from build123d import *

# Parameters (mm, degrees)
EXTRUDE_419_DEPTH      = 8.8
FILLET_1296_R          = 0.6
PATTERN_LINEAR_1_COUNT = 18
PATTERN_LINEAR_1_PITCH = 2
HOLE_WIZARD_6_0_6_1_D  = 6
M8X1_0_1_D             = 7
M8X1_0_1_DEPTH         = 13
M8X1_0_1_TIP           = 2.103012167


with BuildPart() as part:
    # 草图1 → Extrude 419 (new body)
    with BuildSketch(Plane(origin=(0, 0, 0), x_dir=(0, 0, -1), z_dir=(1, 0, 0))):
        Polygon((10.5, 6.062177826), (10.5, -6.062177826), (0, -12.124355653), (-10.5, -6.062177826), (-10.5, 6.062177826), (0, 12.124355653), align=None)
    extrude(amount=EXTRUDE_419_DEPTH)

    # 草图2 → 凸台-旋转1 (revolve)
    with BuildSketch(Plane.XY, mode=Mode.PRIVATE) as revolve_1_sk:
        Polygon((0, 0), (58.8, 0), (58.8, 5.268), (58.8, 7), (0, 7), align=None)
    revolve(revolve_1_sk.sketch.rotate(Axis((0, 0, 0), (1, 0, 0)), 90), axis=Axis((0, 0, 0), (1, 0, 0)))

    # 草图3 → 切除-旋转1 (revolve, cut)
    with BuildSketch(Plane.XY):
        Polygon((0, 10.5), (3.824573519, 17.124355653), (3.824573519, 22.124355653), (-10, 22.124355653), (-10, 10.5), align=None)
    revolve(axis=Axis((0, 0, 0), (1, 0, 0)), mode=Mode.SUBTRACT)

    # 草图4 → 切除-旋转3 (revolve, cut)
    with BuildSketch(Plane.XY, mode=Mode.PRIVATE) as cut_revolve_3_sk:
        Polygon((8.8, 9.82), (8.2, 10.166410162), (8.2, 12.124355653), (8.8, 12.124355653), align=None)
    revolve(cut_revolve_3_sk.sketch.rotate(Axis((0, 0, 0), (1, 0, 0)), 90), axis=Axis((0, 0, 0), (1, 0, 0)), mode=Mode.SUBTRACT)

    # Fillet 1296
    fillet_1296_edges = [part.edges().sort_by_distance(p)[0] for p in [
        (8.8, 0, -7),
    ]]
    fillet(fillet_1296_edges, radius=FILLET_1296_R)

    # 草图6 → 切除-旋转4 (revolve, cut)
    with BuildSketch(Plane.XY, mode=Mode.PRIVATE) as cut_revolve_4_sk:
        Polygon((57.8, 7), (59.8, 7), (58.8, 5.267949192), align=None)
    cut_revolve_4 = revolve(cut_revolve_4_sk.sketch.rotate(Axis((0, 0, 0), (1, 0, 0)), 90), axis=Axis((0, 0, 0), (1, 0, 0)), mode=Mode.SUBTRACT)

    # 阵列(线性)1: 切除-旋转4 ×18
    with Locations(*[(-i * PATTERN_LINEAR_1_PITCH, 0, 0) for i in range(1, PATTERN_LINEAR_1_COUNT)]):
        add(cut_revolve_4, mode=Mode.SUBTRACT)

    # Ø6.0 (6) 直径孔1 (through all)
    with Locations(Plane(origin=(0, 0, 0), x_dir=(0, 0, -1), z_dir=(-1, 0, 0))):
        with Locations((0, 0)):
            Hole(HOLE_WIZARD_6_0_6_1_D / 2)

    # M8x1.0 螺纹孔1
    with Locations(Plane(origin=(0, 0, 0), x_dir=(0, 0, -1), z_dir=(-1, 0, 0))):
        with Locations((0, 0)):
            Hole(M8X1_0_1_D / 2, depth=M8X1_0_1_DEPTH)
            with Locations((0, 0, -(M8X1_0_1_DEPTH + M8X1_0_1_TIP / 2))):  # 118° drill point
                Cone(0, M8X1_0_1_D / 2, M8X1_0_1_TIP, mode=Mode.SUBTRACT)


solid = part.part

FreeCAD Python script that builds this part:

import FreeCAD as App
import Part
import Sketcher
from FreeCAD import Vector
Q = App.Units.Quantity


def edges_at(feature, points):
    """Names of the edges that pass closest to the given points."""
    edges = feature.Shape.Edges
    near = lambda p: min(range(len(edges)), key=lambda i: edges[i].distToShape(Part.Vertex(*p))[0])
    return sorted({f"Edge{near(p) + 1}" for p in points})

doc = App.newDocument("Part")
body = doc.addObject("PartDesign::Body", "Body")

# Sketch on YZ plane
sketch1 = doc.addObject("Sketcher::SketchObject", "Sketch")
body.addObject(sketch1)
sketch1.AttachmentSupport = (doc.YZ_Plane, [""])
sketch1.MapMode = "FlatFace"
sketch1.addGeometry(Part.LineSegment(Vector(-6, -10, 0), Vector(6, -10, 0)), False)
sketch1.addGeometry(Part.LineSegment(Vector(6, -10, 0), Vector(12, 0, 0)), False)
sketch1.addGeometry(Part.LineSegment(Vector(12, 0, 0), Vector(6, 10, 0)), False)
sketch1.addGeometry(Part.LineSegment(Vector(6, 10, 0), Vector(-6, 10, 0)), False)
sketch1.addGeometry(Part.LineSegment(Vector(-6, 10, 0), Vector(-12, 0, 0)), False)
sketch1.addGeometry(Part.LineSegment(Vector(-12, 0, 0), Vector(-6, -10, 0)), False)
sketch1.addConstraint(Sketcher.Constraint("Coincident", 0, 2, 1, 1))
sketch1.addConstraint(Sketcher.Constraint("Coincident", 1, 2, 2, 1))
sketch1.addConstraint(Sketcher.Constraint("Coincident", 2, 2, 3, 1))
sketch1.addConstraint(Sketcher.Constraint("Coincident", 3, 2, 4, 1))
sketch1.addConstraint(Sketcher.Constraint("Coincident", 4, 2, 5, 1))
sketch1.addConstraint(Sketcher.Constraint("Coincident", 5, 2, 0, 1))
sketch1.addConstraint(Sketcher.Constraint("Horizontal", 0))
sketch1.addConstraint(Sketcher.Constraint("Horizontal", 3))
sketch1.addConstraint(Sketcher.Constraint("Symmetric", 0, 2, 3, 2, -1, 1))
sketch1.addConstraint(Sketcher.Constraint("Symmetric", 1, 2, 4, 2, -1, 1))
sketch1.addConstraint(Sketcher.Constraint("PointOnObject", 1, 2, -1))
sketch1.addConstraint(Sketcher.Constraint("Parallel", 2, 5))
sketch1.addConstraint(Sketcher.Constraint("Vertical", 0, 2, 2, 2))
sketch1.addConstraint(Sketcher.Constraint("Angle", 1, Q("60 deg")))
sketch1.addConstraint(Sketcher.Constraint("DistanceY", 0, 2, 2, 2, Q("21 mm")))
sketch1.addConstraint(Sketcher.Constraint("DistanceX", 0, 1, 0, 2, Q("12.124356 mm")))
pad1 = doc.addObject("PartDesign::Pad", "Pad")
body.addObject(pad1)
pad1.Profile = sketch1
pad1.Length = 8.8

# Sketch on XY plane
sketch2 = doc.addObject("Sketcher::SketchObject", "Sketch001")
body.addObject(sketch2)
sketch2.AttachmentSupport = (doc.XY_Plane, [""])
sketch2.MapMode = "FlatFace"
sketch2.addGeometry(Part.LineSegment(Vector(0, 0, 0), Vector(59, 0, 0)), False)
sketch2.addGeometry(Part.LineSegment(Vector(59, 0, 0), Vector(59, 7, 0)), False)
sketch2.addGeometry(Part.LineSegment(Vector(59, 7, 0), Vector(0, 7, 0)), False)
sketch2.addGeometry(Part.LineSegment(Vector(0, 7, 0), Vector(0, 0, 0)), False)
sketch2.addConstraint(Sketcher.Constraint("Coincident", 0, 2, 1, 1))
sketch2.addConstraint(Sketcher.Constraint("Coincident", 1, 2, 2, 1))
sketch2.addConstraint(Sketcher.Constraint("Coincident", 2, 2, 3, 1))
sketch2.addConstraint(Sketcher.Constraint("Coincident", 3, 2, 0, 1))
sketch2.addConstraint(Sketcher.Constraint("Horizontal", 0))
sketch2.addConstraint(Sketcher.Constraint("Vertical", 1))
sketch2.addConstraint(Sketcher.Constraint("Horizontal", 2))
sketch2.addConstraint(Sketcher.Constraint("Vertical", 3))
sketch2.addConstraint(Sketcher.Constraint("Coincident", 3, 2, -1, 1))
sketch2.addConstraint(Sketcher.Constraint("DistanceY", 1, 1, 1, 2, Q("7 mm")))
sketch2.addConstraint(Sketcher.Constraint("DistanceX", 0, 1, 0, 2, Q("58.8 mm")))
revolution = doc.addObject("PartDesign::Revolution", "Revolution")
body.addObject(revolution)
revolution.Profile = sketch2
revolution.ReferenceAxis = (sketch2, ["H_Axis"])
revolution.Angle = 360

# Sketch on XY plane
sketch3 = doc.addObject("Sketcher::SketchObject", "Sketch002")
body.addObject(sketch3)
sketch3.AttachmentSupport = (doc.XY_Plane, [""])
sketch3.MapMode = "FlatFace"
sketch3.addGeometry(Part.LineSegment(Vector(0, 10, 0), Vector(4, 17, 0)), False)
sketch3.addGeometry(Part.LineSegment(Vector(4, 17, 0), Vector(4, 22, 0)), False)
sketch3.addGeometry(Part.LineSegment(Vector(4, 22, 0), Vector(-10, 22, 0)), False)
sketch3.addGeometry(Part.LineSegment(Vector(-10, 22, 0), Vector(-10, 10, 0)), False)
sketch3.addGeometry(Part.LineSegment(Vector(-10, 10, 0), Vector(0, 10, 0)), False)
sketch3.addConstraint(Sketcher.Constraint("Coincident", 0, 2, 1, 1))
sketch3.addConstraint(Sketcher.Constraint("Coincident", 1, 2, 2, 1))
sketch3.addConstraint(Sketcher.Constraint("Coincident", 2, 2, 3, 1))
sketch3.addConstraint(Sketcher.Constraint("Coincident", 3, 2, 4, 1))
sketch3.addConstraint(Sketcher.Constraint("Coincident", 4, 2, 0, 1))
sketch3.addConstraint(Sketcher.Constraint("Vertical", 1))
sketch3.addConstraint(Sketcher.Constraint("Horizontal", 2))
sketch3.addConstraint(Sketcher.Constraint("Vertical", 3))
sketch3.addConstraint(Sketcher.Constraint("Horizontal", 4))
sketch3.addConstraint(Sketcher.Constraint("PointOnObject", 4, 2, -2))
sketch3.addConstraint(Sketcher.Constraint("DistanceX", 4, 1, 4, 2, Q("10 mm")))
sketch3.addConstraint(Sketcher.Constraint("DistanceY", 1, 1, 1, 2, Q("5 mm")))
sketch3.addConstraint(Sketcher.Constraint("Angle", 0, Q("60 deg")))
sketch3.addConstraint(Sketcher.Constraint("DistanceY", -1, 1, 3, 2, Q("10.5 mm")))
sketch3.addConstraint(Sketcher.Constraint("DistanceX", 2, 2, 2, 1, Q("13.824574 mm")))
groove = doc.addObject("PartDesign::Groove", "Groove")
body.addObject(groove)
groove.Profile = sketch3
groove.ReferenceAxis = (sketch3, ["H_Axis"])
groove.Angle = 360

# Sketch on XY plane
sketch4 = doc.addObject("Sketcher::SketchObject", "Sketch003")
body.addObject(sketch4)
sketch4.AttachmentSupport = (doc.XY_Plane, [""])
sketch4.MapMode = "FlatFace"
sketch4.addGeometry(Part.LineSegment(Vector(8.2, 10.2, 0), Vector(8.8, 9.8, 0)), False)
sketch4.addGeometry(Part.LineSegment(Vector(8.8, 9.8, 0), Vector(8.8, 12.1, 0)), False)
sketch4.addGeometry(Part.LineSegment(Vector(8.8, 12.1, 0), Vector(8.2, 12.1, 0)), False)
sketch4.addGeometry(Part.LineSegment(Vector(8.2, 12.1, 0), Vector(8.2, 10.2, 0)), False)
sketch4.addConstraint(Sketcher.Constraint("Coincident", 0, 2, 1, 1))
sketch4.addConstraint(Sketcher.Constraint("Coincident", 1, 2, 2, 1))
sketch4.addConstraint(Sketcher.Constraint("Coincident", 2, 2, 3, 1))
sketch4.addConstraint(Sketcher.Constraint("Coincident", 3, 2, 0, 1))
sketch4.addConstraint(Sketcher.Constraint("Vertical", 1))
sketch4.addConstraint(Sketcher.Constraint("Horizontal", 2))
sketch4.addConstraint(Sketcher.Constraint("Vertical", 3))
sketch4.addConstraint(Sketcher.Constraint("Angle", 0, Q("-30 deg")))
sketch4.addConstraint(Sketcher.Constraint("DistanceX", 2, 2, 2, 1, Q("0.6 mm")))
sketch4.addConstraint(Sketcher.Constraint("DistanceX", -1, 1, 0, 2, Q("8.8 mm")))
sketch4.addConstraint(Sketcher.Constraint("DistanceY", -1, 1, 0, 2, Q("9.82 mm")))
sketch4.addConstraint(Sketcher.Constraint("DistanceY", 1, 1, 1, 2, Q("2.304356 mm")))
groove2 = doc.addObject("PartDesign::Groove", "Groove001")
body.addObject(groove2)
groove2.Profile = sketch4
groove2.ReferenceAxis = (sketch4, ["H_Axis"])
groove2.Angle = 360
doc.recompute()

fillet = doc.addObject("PartDesign::Fillet", "Fillet")
body.addObject(fillet)
fillet.Base = (groove2, edges_at(groove2, [(8.8, 0, -7)]))
fillet.Radius = 0.6

# Sketch on XY plane
sketch5 = doc.addObject("Sketcher::SketchObject", "Sketch004")
body.addObject(sketch5)
sketch5.AttachmentSupport = (doc.XY_Plane, [""])
sketch5.MapMode = "FlatFace"
sketch5.addGeometry(Part.LineSegment(Vector(59.8, 7, 0), Vector(57.8, 7, 0)), False)
sketch5.addGeometry(Part.LineSegment(Vector(57.8, 7, 0), Vector(58.8, 5.3, 0)), False)
sketch5.addGeometry(Part.LineSegment(Vector(58.8, 5.3, 0), Vector(59.8, 7, 0)), False)
sketch5.addConstraint(Sketcher.Constraint("Coincident", 0, 2, 1, 1))
sketch5.addConstraint(Sketcher.Constraint("Coincident", 1, 2, 2, 1))
sketch5.addConstraint(Sketcher.Constraint("Coincident", 2, 2, 0, 1))
sketch5.addConstraint(Sketcher.Constraint("Horizontal", 0))
sketch5.addConstraint(Sketcher.Constraint("Equal", 1, 2))
sketch5.addConstraint(Sketcher.Constraint("DistanceX", 0, 2, 0, 1, Q("2 mm")))
sketch5.addConstraint(Sketcher.Constraint("Angle", 1, Q("-60 deg")))
sketch5.addConstraint(Sketcher.Constraint("DistanceY", -1, 1, 0, 2, Q("7 mm")))
sketch5.addConstraint(Sketcher.Constraint("DistanceX", -1, 1, 0, 2, Q("57.8 mm")))
groove3 = doc.addObject("PartDesign::Groove", "Groove002")
body.addObject(groove3)
groove3.Profile = sketch5
groove3.ReferenceAxis = (sketch5, ["H_Axis"])
groove3.Angle = 360
doc.recompute()

linearpattern = doc.addObject("PartDesign::LinearPattern", "LinearPattern")
body.addObject(linearpattern)
linearpattern.Originals = [groove3]
linearpattern.Direction = (doc.X_Axis, [""])
linearpattern.Mode = "offset"
linearpattern.Offset = 2
linearpattern.Occurrences = 18
linearpattern.Reversed = True
body.Tip = linearpattern

# Sketch on YZ plane
sketch6 = doc.addObject("Sketcher::SketchObject", "Sketch005")
body.addObject(sketch6)
sketch6.AttachmentSupport = (doc.YZ_Plane, [""])
sketch6.MapMode = "FlatFace"
sketch6.addGeometry(Part.Circle(Vector(0, 0, 0), Vector(0, 0, 1), 3), False)
sketch6.addConstraint(Sketcher.Constraint("Coincident", 0, 3, -1, 1))
sketch6.addConstraint(Sketcher.Constraint("Diameter", 0, Q("6 mm")))
doc.recompute()
hole = doc.addObject("PartDesign::Hole", "Hole")
body.addObject(hole)
hole.Profile = sketch6
hole.ThreadType = "None"
hole.Diameter = 6
hole.DepthType = "ThroughAll"
hole.Reversed = True

# Sketch on YZ plane
sketch7 = doc.addObject("Sketcher::SketchObject", "Sketch006")
body.addObject(sketch7)
sketch7.AttachmentSupport = (doc.YZ_Plane, [""])
sketch7.MapMode = "FlatFace"
sketch7.addGeometry(Part.Circle(Vector(0, 0, 0), Vector(0, 0, 1), 3.5), False)
sketch7.addConstraint(Sketcher.Constraint("Coincident", 0, 3, -1, 1))
sketch7.addConstraint(Sketcher.Constraint("Diameter", 0, Q("7 mm")))
doc.recompute()
hole2 = doc.addObject("PartDesign::Hole", "Hole001")
body.addObject(hole2)
hole2.Profile = sketch7
hole2.ThreadType = "None"
hole2.Diameter = 7
hole2.DepthType = "Dimension"
hole2.Depth = 13
hole2.DrillPoint = "Angled"
hole2.DrillPointAngle = 118
hole2.Reversed = True

doc.recompute()
